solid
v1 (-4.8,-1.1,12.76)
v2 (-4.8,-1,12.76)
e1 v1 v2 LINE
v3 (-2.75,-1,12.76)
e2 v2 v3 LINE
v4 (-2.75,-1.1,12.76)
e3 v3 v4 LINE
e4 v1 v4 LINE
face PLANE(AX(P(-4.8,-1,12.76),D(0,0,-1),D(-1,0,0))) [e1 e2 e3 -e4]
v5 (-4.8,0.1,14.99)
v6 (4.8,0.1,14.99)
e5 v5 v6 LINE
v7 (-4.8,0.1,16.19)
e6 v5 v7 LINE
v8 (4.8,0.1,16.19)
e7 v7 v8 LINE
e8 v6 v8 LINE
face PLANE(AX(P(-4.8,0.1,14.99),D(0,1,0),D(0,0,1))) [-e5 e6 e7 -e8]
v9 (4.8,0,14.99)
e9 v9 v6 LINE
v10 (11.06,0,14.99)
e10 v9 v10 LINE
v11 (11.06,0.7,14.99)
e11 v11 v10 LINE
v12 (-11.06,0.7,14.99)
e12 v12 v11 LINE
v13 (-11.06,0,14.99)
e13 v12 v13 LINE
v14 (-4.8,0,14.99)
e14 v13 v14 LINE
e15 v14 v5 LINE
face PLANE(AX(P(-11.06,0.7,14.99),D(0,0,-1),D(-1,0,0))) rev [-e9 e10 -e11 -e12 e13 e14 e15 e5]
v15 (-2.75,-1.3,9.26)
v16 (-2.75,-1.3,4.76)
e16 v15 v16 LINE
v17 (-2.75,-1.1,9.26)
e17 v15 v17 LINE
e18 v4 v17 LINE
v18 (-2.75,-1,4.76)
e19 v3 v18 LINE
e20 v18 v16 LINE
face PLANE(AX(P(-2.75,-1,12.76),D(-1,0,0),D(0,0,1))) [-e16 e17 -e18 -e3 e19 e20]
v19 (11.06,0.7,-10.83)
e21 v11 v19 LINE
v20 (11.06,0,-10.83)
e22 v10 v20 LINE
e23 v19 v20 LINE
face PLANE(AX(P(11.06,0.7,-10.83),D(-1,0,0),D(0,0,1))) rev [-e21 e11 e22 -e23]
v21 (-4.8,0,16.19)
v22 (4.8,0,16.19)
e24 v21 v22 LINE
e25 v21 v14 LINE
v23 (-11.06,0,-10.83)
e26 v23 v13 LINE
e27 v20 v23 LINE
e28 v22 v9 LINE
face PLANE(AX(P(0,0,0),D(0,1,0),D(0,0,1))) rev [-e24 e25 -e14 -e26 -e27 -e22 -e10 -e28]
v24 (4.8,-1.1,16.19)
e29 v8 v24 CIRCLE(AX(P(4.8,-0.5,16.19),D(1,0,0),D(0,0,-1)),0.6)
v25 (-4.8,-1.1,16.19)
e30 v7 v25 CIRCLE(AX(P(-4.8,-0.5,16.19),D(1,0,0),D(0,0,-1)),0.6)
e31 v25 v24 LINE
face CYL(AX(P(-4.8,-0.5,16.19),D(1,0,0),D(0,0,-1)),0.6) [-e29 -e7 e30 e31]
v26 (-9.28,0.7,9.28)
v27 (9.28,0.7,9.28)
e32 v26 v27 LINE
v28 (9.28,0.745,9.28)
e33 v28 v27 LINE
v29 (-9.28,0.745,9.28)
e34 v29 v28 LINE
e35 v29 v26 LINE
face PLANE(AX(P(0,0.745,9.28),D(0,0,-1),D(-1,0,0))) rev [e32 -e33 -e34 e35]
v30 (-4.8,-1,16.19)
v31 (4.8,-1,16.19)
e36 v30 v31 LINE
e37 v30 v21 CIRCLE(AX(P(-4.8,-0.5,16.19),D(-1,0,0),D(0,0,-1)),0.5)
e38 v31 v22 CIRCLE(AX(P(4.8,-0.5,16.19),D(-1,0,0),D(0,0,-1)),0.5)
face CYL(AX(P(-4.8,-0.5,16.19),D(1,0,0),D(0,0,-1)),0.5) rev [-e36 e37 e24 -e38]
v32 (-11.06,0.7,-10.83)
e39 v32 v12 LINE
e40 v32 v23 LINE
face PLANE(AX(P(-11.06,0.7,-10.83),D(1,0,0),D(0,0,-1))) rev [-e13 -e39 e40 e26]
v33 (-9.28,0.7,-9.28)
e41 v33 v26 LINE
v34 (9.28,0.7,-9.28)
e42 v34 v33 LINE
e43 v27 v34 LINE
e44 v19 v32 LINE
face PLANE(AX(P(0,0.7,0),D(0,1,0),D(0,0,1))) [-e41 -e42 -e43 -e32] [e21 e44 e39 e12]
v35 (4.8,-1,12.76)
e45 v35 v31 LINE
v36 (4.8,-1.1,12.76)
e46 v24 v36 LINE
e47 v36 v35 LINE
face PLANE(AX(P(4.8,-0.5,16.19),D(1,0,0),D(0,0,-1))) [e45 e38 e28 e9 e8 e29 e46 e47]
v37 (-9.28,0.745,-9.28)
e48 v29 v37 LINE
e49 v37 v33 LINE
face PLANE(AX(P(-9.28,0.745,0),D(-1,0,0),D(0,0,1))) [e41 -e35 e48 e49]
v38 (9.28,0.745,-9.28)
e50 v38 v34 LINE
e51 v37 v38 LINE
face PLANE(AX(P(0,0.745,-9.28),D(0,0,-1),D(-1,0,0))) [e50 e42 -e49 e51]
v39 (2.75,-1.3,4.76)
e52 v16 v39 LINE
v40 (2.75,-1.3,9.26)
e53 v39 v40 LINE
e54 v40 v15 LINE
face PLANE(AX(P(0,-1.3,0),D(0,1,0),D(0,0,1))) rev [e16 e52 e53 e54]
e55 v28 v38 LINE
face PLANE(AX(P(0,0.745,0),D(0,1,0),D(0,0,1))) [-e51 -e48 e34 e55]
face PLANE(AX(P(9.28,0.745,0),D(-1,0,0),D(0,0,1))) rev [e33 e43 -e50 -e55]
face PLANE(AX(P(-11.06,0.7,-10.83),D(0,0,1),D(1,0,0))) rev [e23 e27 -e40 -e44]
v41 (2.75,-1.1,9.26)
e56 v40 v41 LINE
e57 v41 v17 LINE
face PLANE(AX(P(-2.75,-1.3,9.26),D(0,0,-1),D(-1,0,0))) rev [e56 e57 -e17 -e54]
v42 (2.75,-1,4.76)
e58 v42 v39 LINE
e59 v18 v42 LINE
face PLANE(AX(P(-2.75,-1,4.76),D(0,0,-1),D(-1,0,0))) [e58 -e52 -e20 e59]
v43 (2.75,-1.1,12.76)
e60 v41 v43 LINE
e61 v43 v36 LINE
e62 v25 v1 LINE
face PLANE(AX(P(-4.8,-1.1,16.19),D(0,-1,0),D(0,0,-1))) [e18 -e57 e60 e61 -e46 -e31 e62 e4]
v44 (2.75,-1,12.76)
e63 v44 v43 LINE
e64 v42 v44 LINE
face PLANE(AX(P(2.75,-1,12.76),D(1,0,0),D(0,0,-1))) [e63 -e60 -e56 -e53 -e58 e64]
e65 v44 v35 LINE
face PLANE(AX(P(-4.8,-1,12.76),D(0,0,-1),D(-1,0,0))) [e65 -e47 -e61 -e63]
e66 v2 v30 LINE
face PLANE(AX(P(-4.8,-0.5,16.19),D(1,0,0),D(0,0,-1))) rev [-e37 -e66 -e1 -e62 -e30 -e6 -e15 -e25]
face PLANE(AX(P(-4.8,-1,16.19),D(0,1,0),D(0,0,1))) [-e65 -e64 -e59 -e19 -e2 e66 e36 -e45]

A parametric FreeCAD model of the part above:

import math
import FreeCAD as App
import Part
import Sketcher
Q = App.Units.Quantity


def add_polygon(sketch, points):
    """Adds a closed chain of lines whose ends are joined by coincident constraints."""
    first, n = sketch.GeometryCount, len(points)
    for a, b in zip(points, points[1:] + points[:1]):
        sketch.addGeometry(Part.LineSegment(App.Vector(*a, 0), App.Vector(*b, 0)), False)
    for i in range(n):
        sketch.addConstraint(Sketcher.Constraint("Coincident", first + i, 2, first + (i + 1) % n, 1))

doc = App.newDocument("Part")
body = doc.addObject("PartDesign::Body", "Body")

sketch1 = body.newObject("Sketcher::SketchObject", "Sketch")
sketch1.AttachmentSupport = (doc.getObject("XZ_Plane"), [""])
sketch1.MapMode = "FlatFace"
add_polygon(sketch1, [(-11, -11), (-11, 15), (11, 15), (11, -11)])
add_polygon(sketch1, [(9, 9), (-9, 9), (-9, -9), (9, -9)])
sketch1.addConstraint(Sketcher.Constraint("Vertical", 0))
sketch1.addConstraint(Sketcher.Constraint("Horizontal", 1))
sketch1.addConstraint(Sketcher.Constraint("Vertical", 2))
sketch1.addConstraint(Sketcher.Constraint("Horizontal", 3))
sketch1.addConstraint(Sketcher.Constraint("Horizontal", 4))
sketch1.addConstraint(Sketcher.Constraint("Vertical", 5))
sketch1.addConstraint(Sketcher.Constraint("Horizontal", 6))
sketch1.addConstraint(Sketcher.Constraint("Vertical", 7))
sketch1.addConstraint(Sketcher.Constraint("Symmetric", 4, 2, 6, 2, -1, 1))
sketch1.addConstraint(Sketcher.Constraint("Equal", 6, 5))
sketch1.addConstraint(Sketcher.Constraint("DistanceX", 1, 1, 1, 2, Q("22.12 mm")))
sketch1.addConstraint(Sketcher.Constraint("DistanceX", 4, 2, 4, 1, Q("18.56 mm")))
sketch1.addConstraint(Sketcher.Constraint("DistanceY", 0, 1, 0, 2, Q("25.82 mm")))
sketch1.addConstraint(Sketcher.Constraint("DistanceX", 0, 2, -1, 1, Q("11.06 mm")))
sketch1.addConstraint(Sketcher.Constraint("DistanceY", -1, 1, 0, 2, Q("14.99 mm")))
pad1 = body.newObject("PartDesign::Pad", "Pad")
pad1.Profile = sketch1
pad1.Length = 0.7
pad1.Reversed = True

sketch2 = body.newObject("Sketcher::SketchObject", "Sketch001")
sketch2.AttachmentSupport = (doc.getObject("XZ_Plane"), [""])
sketch2.MapMode = "FlatFace"
add_polygon(sketch2, [(-9, -9), (-9, 9), (9, 9), (9, -9)])
sketch2.addConstraint(Sketcher.Constraint("Vertical", 0))
sketch2.addConstraint(Sketcher.Constraint("Horizontal", 1))
sketch2.addConstraint(Sketcher.Constraint("Vertical", 2))
sketch2.addConstraint(Sketcher.Constraint("Horizontal", 3))
sketch2.addConstraint(Sketcher.Constraint("Symmetric", 0, 2, 2, 2, -1, 1))
sketch2.addConstraint(Sketcher.Constraint("Equal", 3, 0))
sketch2.addConstraint(Sketcher.Constraint("DistanceX", 1, 1, 1, 2, Q("18.56 mm")))
pad2 = body.newObject("PartDesign::Pad", "Pad001")
pad2.Profile = sketch2
pad2.Length = 0.745
pad2.Reversed = True

sketch3 = body.newObject("Sketcher::SketchObject", "Sketch002")
sketch3.AttachmentSupport = (doc.getObject("YZ_Plane"), [""])
sketch3.MapMode = "FlatFace"
sketch3.addGeometry(Part.LineSegment(App.Vector(0, 16.19, 0), App.Vector(0, 14.99, 0)), False)
sketch3.addGeometry(Part.LineSegment(App.Vector(0, 14.99, 0), App.Vector(0.1, 14.99, 0)), False)
sketch3.addGeometry(Part.LineSegment(App.Vector(0.1, 14.99, 0), App.Vector(0.1, 16.19, 0)), False)
sketch3.addGeometry(Part.ArcOfCircle(Part.Circle(App.Vector(-0.5, 16.19, 0), App.Vector(0, 0, 1), 0.6), math.radians(0), math.radians(180)), False)
sketch3.addGeometry(Part.LineSegment(App.Vector(-1.1, 16.19, 0), App.Vector(-1.1, 12.76, 0)), False)
sketch3.addGeometry(Part.LineSegment(App.Vector(-1.1, 12.76, 0), App.Vector(-1, 12.76, 0)), False)
sketch3.addGeometry(Part.LineSegment(App.Vector(-1, 12.76, 0), App.Vector(-1, 16.19, 0)), False)
sketch3.addGeometry(Part.ArcOfCircle(Part.Circle(App.Vector(-0.5, 16.19, 0), App.Vector(0, 0, 1), 0.5), math.radians(0), math.radians(180)), False)
sketch3.addConstraint(Sketcher.Constraint("Coincident", 0, 2, 1, 1))
sketch3.addConstraint(Sketcher.Constraint("Coincident", 1, 2, 2, 1))
sketch3.addConstraint(Sketcher.Constraint("Tangent", 2, 2, 3, 1))
sketch3.addConstraint(Sketcher.Constraint("Tangent", 3, 2, 4, 1))
sketch3.addConstraint(Sketcher.Constraint("Coincident", 4, 2, 5, 1))
sketch3.addConstraint(Sketcher.Constraint("Coincident", 5, 2, 6, 1))
sketch3.addConstraint(Sketcher.Constraint("Tangent", 6, 2, 7, 2))
sketch3.addConstraint(Sketcher.Constraint("Tangent", 7, 1, 0, 1))
sketch3.addConstraint(Sketcher.Constraint("Vertical", 0))
sketch3.addConstraint(Sketcher.Constraint("Horizontal", 1))
sketch3.addConstraint(Sketcher.Constraint("Vertical", 2))
sketch3.addConstraint(Sketcher.Constraint("Vertical", 4))
sketch3.addConstraint(Sketcher.Constraint("Horizontal", 5))
sketch3.addConstraint(Sketcher.Constraint("Vertical", 6))
sketch3.addConstraint(Sketcher.Constraint("Coincident", 7, 3, 3, 3))
sketch3.addConstraint(Sketcher.Constraint("PointOnObject", 0, 2, -2))
sketch3.addConstraint(Sketcher.Constraint("Radius", 3, Q("0.6 mm")))
sketch3.addConstraint(Sketcher.Constraint("Radius", 7, Q("0.5 mm")))
sketch3.addConstraint(Sketcher.Constraint("DistanceY", 0, 2, 0, 1, Q("1.2 mm")))
sketch3.addConstraint(Sketcher.Constraint("DistanceY", 4, 2, 4, 1, Q("3.43 mm")))
sketch3.addConstraint(Sketcher.Constraint("DistanceY", -1, 1, 3, 3, Q("16.19 mm")))
pad3 = body.newObject("PartDesign::Pad", "Pad002")
pad3.Profile = sketch3
pad3.Type = "TwoLengths"
pad3.Length = 4.8
pad3.Length2 = 4.8

sketch4 = body.newObject("Sketcher::SketchObject", "Sketch003")
sketch4.AttachmentSupport = (doc.getObject("XZ_Plane"), [""])
sketch4.MapMode = "FlatFace"
sketch4.AttachmentOffset = App.Placement(App.Vector(0, 0, 1.1), App.Rotation())
add_polygon(sketch4, [(-3, 13), (-3, 5), (3, 5), (3, 13)])
sketch4.addConstraint(Sketcher.Constraint("Vertical", 0))
sketch4.addConstraint(Sketcher.Constraint("Horizontal", 1))
sketch4.addConstraint(Sketcher.Constraint("Vertical", 2))
sketch4.addConstraint(Sketcher.Constraint("Horizontal", 3))
sketch4.addConstraint(Sketcher.Constraint("DistanceY", 0, 2, 0, 1, Q("8 mm")))
sketch4.addConstraint(Sketcher.Constraint("DistanceX", 1, 1, 1, 2, Q("5.5 mm")))
sketch4.addConstraint(Sketcher.Constraint("DistanceX", 0, 2, -1, 1, Q("2.75 mm")))
sketch4.addConstraint(Sketcher.Constraint("DistanceY", -1, 1, 0, 2, Q("4.76 mm")))
pad4 = body.newObject("PartDesign::Pad", "Pad003")
pad4.Profile = sketch4
pad4.Length = 0.1
pad4.Reversed = True

sketch5 = body.newObject("Sketcher::SketchObject", "Sketch004")
sketch5.AttachmentSupport = (doc.getObject("XZ_Plane"), [""])
sketch5.MapMode = "FlatFace"
sketch5.AttachmentOffset = App.Placement(App.Vector(0, 0, 1.1), App.Rotation())
add_polygon(sketch5, [(-2.8, 9.3), (-2.8, 4.8), (2.8, 4.8), (2.8, 9.3)])
sketch5.addConstraint(Sketcher.Constraint("Vertical", 0))
sketch5.addConstraint(Sketcher.Constraint("Horizontal", 1))
sketch5.addConstraint(Sketcher.Constraint("Vertical", 2))
sketch5.addConstraint(Sketcher.Constraint("Horizontal", 3))
sketch5.addConstraint(Sketcher.Constraint("DistanceX", 1, 1, 1, 2, Q("5.5 mm")))
sketch5.addConstraint(Sketcher.Constraint("DistanceY", 0, 2, 0, 1, Q("4.5 mm")))
sketch5.addConstraint(Sketcher.Constraint("DistanceX", 0, 2, -1, 1, Q("2.75 mm")))
sketch5.addConstraint(Sketcher.Constraint("DistanceY", -1, 1, 0, 2, Q("4.76 mm")))
pad5 = body.newObject("PartDesign::Pad", "Pad004")
pad5.Profile = sketch5
pad5.Length = 0.2

doc.recompute()
